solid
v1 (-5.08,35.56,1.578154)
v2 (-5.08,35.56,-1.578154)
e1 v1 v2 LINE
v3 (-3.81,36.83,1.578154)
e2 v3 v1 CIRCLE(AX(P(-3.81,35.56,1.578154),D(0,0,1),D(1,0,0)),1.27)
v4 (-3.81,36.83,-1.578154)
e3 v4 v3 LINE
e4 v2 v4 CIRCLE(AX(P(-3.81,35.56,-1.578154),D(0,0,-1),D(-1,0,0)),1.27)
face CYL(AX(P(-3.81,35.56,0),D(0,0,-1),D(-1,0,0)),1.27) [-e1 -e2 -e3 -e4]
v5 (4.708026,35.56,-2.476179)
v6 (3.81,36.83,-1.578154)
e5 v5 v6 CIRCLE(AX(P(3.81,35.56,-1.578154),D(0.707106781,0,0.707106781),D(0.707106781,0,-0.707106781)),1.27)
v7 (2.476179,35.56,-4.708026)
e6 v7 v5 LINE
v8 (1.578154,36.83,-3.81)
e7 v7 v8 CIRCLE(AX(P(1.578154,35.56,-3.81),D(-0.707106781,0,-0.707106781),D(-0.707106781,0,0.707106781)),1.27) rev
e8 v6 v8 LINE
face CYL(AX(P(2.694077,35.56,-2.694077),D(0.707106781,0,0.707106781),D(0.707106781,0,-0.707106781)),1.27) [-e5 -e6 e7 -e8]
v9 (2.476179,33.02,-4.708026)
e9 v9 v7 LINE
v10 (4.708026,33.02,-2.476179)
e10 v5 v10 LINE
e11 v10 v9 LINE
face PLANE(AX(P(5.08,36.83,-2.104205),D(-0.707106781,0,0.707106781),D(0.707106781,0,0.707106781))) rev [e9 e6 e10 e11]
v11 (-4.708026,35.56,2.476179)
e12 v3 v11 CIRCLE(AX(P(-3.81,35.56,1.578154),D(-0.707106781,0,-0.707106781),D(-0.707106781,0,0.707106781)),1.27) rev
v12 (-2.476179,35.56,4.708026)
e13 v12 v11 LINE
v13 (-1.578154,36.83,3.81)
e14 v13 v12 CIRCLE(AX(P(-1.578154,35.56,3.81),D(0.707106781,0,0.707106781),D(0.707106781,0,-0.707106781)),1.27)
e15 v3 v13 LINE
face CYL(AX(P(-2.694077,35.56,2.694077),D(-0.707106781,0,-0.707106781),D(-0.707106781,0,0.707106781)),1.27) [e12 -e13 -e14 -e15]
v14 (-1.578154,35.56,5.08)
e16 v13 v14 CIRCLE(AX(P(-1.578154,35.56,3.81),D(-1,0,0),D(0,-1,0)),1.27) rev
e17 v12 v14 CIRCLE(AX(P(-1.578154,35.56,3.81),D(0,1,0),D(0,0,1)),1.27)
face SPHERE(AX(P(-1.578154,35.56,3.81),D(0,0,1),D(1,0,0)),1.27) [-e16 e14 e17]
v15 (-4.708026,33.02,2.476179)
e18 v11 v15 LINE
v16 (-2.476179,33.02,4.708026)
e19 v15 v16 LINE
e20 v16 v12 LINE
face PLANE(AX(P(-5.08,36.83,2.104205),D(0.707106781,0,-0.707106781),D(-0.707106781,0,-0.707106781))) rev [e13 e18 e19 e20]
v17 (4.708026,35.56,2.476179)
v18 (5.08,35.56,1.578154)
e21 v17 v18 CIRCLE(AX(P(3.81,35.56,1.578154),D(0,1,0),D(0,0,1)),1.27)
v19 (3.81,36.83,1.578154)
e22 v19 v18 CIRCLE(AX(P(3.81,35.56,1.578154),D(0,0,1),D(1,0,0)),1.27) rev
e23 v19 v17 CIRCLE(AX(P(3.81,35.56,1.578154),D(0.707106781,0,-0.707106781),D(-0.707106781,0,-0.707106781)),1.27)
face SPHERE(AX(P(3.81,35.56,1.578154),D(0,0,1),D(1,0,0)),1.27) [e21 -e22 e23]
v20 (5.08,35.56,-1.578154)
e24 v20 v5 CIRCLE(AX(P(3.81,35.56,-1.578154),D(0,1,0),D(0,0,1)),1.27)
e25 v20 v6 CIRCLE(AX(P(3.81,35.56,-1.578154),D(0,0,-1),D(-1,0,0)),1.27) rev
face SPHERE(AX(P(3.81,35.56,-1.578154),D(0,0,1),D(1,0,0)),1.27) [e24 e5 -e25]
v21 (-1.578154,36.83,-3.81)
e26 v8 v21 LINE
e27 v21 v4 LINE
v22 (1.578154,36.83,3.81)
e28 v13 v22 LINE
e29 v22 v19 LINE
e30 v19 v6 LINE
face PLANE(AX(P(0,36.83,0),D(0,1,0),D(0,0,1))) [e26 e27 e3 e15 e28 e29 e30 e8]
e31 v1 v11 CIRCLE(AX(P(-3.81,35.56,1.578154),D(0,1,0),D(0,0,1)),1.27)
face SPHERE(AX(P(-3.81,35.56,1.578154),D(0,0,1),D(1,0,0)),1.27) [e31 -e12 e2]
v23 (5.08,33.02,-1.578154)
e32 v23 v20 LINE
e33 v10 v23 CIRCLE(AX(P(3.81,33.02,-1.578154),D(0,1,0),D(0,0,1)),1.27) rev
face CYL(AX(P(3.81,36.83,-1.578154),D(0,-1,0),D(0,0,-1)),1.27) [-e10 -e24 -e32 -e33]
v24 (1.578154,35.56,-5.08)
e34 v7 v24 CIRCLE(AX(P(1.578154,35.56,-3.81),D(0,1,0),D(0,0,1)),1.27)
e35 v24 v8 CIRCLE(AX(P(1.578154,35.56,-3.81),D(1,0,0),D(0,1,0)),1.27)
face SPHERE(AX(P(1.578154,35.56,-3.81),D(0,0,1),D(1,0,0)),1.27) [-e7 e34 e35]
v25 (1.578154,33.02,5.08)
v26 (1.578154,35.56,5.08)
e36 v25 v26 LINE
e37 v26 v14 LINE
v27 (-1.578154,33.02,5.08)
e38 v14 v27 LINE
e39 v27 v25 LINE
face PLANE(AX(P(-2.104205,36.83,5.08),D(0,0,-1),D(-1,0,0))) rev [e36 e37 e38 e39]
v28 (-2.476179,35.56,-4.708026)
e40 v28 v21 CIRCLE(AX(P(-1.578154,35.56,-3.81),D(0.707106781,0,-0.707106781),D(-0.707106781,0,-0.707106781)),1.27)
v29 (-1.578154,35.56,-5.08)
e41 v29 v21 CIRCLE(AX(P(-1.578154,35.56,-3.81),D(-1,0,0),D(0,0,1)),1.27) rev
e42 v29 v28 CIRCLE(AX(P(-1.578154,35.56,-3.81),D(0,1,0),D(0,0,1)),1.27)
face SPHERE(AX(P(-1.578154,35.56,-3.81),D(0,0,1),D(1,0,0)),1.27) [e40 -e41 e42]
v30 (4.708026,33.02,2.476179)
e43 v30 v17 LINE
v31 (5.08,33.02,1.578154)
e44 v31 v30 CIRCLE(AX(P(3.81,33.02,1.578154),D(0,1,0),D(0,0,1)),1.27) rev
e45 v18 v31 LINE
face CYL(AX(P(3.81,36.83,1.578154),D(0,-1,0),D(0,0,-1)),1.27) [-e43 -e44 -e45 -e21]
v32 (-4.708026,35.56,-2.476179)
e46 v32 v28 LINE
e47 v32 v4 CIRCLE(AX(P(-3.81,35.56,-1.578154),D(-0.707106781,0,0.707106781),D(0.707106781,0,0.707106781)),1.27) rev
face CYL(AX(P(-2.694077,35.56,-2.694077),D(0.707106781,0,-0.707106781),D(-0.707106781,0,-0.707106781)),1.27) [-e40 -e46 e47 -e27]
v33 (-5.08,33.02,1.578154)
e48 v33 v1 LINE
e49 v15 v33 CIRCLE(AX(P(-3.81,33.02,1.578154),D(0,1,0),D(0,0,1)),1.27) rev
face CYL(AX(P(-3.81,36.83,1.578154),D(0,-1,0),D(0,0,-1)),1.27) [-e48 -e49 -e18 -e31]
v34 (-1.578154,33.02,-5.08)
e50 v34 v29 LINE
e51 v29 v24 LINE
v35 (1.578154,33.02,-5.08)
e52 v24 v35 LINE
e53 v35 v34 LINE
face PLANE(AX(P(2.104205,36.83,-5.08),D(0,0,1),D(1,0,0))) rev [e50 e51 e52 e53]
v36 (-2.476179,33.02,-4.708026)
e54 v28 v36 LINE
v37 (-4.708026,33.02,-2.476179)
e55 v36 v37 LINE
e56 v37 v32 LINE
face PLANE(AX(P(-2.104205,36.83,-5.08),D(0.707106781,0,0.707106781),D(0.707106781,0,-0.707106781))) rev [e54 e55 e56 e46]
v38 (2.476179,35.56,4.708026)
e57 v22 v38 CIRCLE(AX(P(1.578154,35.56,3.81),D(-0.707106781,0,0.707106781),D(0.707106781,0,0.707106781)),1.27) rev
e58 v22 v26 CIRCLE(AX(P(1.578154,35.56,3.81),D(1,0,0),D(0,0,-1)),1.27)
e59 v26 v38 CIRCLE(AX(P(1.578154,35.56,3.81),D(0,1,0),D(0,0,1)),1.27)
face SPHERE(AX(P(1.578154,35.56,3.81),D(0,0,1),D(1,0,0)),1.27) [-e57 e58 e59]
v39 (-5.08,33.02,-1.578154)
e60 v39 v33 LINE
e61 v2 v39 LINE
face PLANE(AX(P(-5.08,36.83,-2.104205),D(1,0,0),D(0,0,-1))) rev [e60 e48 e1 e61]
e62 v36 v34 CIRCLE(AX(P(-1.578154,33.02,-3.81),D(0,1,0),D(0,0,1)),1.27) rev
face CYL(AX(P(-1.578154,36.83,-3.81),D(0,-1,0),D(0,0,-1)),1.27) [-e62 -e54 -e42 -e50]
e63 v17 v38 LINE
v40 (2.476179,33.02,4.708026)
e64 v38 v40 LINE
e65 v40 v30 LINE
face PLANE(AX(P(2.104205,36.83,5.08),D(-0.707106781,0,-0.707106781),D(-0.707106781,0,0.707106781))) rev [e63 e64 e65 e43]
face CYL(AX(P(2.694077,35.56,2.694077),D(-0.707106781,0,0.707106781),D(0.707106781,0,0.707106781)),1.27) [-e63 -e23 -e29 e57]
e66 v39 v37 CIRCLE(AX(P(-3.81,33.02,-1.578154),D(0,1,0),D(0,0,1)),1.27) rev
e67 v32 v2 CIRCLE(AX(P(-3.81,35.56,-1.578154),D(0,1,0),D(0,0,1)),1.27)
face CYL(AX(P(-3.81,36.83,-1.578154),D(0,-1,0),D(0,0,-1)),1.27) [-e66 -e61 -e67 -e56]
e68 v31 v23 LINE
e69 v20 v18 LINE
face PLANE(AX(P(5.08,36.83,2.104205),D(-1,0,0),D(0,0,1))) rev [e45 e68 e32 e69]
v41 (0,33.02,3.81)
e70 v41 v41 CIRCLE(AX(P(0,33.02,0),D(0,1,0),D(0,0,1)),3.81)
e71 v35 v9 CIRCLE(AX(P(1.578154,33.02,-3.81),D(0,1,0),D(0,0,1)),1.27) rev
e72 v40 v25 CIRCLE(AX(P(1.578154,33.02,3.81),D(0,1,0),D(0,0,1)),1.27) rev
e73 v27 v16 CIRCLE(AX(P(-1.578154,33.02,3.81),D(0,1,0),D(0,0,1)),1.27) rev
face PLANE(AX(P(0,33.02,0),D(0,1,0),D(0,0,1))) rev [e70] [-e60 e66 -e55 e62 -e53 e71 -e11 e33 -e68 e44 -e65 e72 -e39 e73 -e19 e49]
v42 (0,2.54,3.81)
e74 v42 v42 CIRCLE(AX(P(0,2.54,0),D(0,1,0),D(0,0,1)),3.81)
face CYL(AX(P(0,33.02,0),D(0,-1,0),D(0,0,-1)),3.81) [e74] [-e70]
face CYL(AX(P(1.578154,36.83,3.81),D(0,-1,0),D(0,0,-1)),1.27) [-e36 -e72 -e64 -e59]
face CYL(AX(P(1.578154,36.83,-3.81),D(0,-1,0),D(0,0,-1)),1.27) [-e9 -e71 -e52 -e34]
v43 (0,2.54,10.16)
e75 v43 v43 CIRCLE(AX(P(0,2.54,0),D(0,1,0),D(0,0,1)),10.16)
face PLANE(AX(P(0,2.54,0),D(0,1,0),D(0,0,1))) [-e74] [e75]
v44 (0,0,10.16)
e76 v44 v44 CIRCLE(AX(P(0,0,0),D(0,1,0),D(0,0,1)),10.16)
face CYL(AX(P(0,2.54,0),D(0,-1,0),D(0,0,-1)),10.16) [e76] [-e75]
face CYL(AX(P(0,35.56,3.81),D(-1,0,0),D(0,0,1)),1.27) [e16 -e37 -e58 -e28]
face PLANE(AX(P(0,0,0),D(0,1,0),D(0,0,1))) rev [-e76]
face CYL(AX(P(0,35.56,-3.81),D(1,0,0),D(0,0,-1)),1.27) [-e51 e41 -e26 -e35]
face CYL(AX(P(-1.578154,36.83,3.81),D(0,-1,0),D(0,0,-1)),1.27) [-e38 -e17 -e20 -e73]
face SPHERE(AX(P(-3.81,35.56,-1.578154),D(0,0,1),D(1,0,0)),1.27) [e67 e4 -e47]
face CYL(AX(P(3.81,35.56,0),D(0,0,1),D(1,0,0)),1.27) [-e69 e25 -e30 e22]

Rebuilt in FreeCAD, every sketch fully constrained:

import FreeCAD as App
import Part
import Sketcher
Q = App.Units.Quantity


def edges_at(feature, points):
    """Names of the edges that pass closest to the given points."""
    edges = feature.Shape.Edges
    near = lambda p: min(range(len(edges)), key=lambda i: edges[i].distToShape(Part.Vertex(*p))[0])
    return sorted({f"Edge{near(p) + 1}" for p in points})

doc = App.newDocument("Part")
body = doc.addObject("PartDesign::Body", "Body")

# Sketch on XZ plane
sketch1 = body.newObject("Sketcher::SketchObject", "Sketch")
sketch1.AttachmentSupport = (doc.getObject("XZ_Plane"), [""])
sketch1.MapMode = "FlatFace"
sketch1.addGeometry(Part.Circle(App.Vector(0, 0, 0), App.Vector(0, 0, 1), 10), False)
sketch1.addConstraint(Sketcher.Constraint("Coincident", 0, 3, -1, 1))
sketch1.addConstraint(Sketcher.Constraint("Diameter", 0, Q("0.8 in")))
pad1 = body.newObject("PartDesign::Pad", "Pad")
pad1.Profile = sketch1
pad1.Length = Q("0.1 in")
pad1.Reversed = True

# Sketch on XZ plane
sketch2 = body.newObject("Sketcher::SketchObject", "Sketch001")
sketch2.AttachmentSupport = (doc.getObject("XZ_Plane"), [""])
sketch2.MapMode = "FlatFace"
sketch2.AttachmentOffset = App.Placement(App.Vector(0, 0, -0.1 * 25.4), App.Rotation())
sketch2.addGeometry(Part.Circle(App.Vector(0, 0, 0), App.Vector(0, 0, 1), 3.8), False)
sketch2.addConstraint(Sketcher.Constraint("Coincident", 0, 3, -1, 1))
sketch2.addConstraint(Sketcher.Constraint("Diameter", 0, Q("0.3 in")))
pad2 = body.newObject("PartDesign::Pad", "Pad001")
pad2.Profile = sketch2
pad2.Length = Q("1.2 in")
pad2.Reversed = True

# Sketch on XZ plane
sketch3 = body.newObject("Sketcher::SketchObject", "Sketch002")
sketch3.AttachmentSupport = (doc.getObject("XZ_Plane"), [""])
sketch3.MapMode = "FlatFace"
sketch3.AttachmentOffset = App.Placement(App.Vector(0, 0, -1.3 * 25.4), App.Rotation())
sketch3.addGeometry(Part.LineSegment(App.Vector(2.1, -5.1, 0), App.Vector(-2.1, -5.1, 0)), False)
sketch3.addGeometry(Part.LineSegment(App.Vector(-2.1, -5.1, 0), App.Vector(-5.1, -2.1, 0)), False)
sketch3.addGeometry(Part.LineSegment(App.Vector(-5.1, -2.1, 0), App.Vector(-5.1, 2.1, 0)), False)
sketch3.addGeometry(Part.LineSegment(App.Vector(-5.1, 2.1, 0), App.Vector(-2.1, 5.1, 0)), False)
sketch3.addGeometry(Part.LineSegment(App.Vector(-2.1, 5.1, 0), App.Vector(2.1, 5.1, 0)), False)
sketch3.addGeometry(Part.LineSegment(App.Vector(2.1, 5.1, 0), App.Vector(5.1, 2.1, 0)), False)
sketch3.addGeometry(Part.LineSegment(App.Vector(5.1, 2.1, 0), App.Vector(5.1, -2.1, 0)), False)
sketch3.addGeometry(Part.LineSegment(App.Vector(5.1, -2.1, 0), App.Vector(2.1, -5.1, 0)), False)
sketch3.addConstraint(Sketcher.Constraint("Coincident", 0, 2, 1, 1))
sketch3.addConstraint(Sketcher.Constraint("Coincident", 1, 2, 2, 1))
sketch3.addConstraint(Sketcher.Constraint("Coincident", 2, 2, 3, 1))
sketch3.addConstraint(Sketcher.Constraint("Coincident", 3, 2, 4, 1))
sketch3.addConstraint(Sketcher.Constraint("Coincident", 4, 2, 5, 1))
sketch3.addConstraint(Sketcher.Constraint("Coincident", 5, 2, 6, 1))
sketch3.addConstraint(Sketcher.Constraint("Coincident", 6, 2, 7, 1))
sketch3.addConstraint(Sketcher.Constraint("Coincident", 7, 2, 0, 1))
sketch3.addConstraint(Sketcher.Constraint("Horizontal", 0))
sketch3.addConstraint(Sketcher.Constraint("Vertical", 2))
sketch3.addConstraint(Sketcher.Constraint("Horizontal", 4))
sketch3.addConstraint(Sketcher.Constraint("Vertical", 6))
sketch3.addConstraint(Sketcher.Constraint("Symmetric", 0, 2, 4, 2, -1, 1))
sketch3.addConstraint(Sketcher.Constraint("Symmetric", 1, 2, 5, 2, -1, 1))
sketch3.addConstraint(Sketcher.Constraint("Perpendicular", 1, 3))
sketch3.addConstraint(Sketcher.Constraint("Perpendicular", 5, 7))
sketch3.addConstraint(Sketcher.Constraint("Horizontal", 2, 2, 5, 2))
sketch3.addConstraint(Sketcher.Constraint("Horizontal", 1, 2, 6, 2))
sketch3.addConstraint(Sketcher.Constraint("Vertical", 0, 2, 3, 2))
sketch3.addConstraint(Sketcher.Constraint("Equal", 4, 2))
sketch3.addConstraint(Sketcher.Constraint("DistanceY", 0, 2, -1, 1, Q("0.2 in")))
sketch3.addConstraint(Sketcher.Constraint("DistanceX", 0, 2, 0, 1, Q("4.20841 mm")))
pad3 = body.newObject("PartDesign::Pad", "Pad002")
pad3.Profile = sketch3
pad3.Length = Q("0.15 in")
pad3.Reversed = True
doc.recompute()

fillet = body.newObject("PartDesign::Fillet", "Fillet")
fillet.Base = (pad3, edges_at(pad3, [
    (5.08, 34.925, -2.104),
    (2.104, 34.925, -5.08),
    (-2.104, 34.925, -5.08),
    (-5.08, 34.925, -2.104),
    (-5.08, 34.925, 2.104),
    (-2.104, 34.925, 5.08),
    (2.104, 34.925, 5.08),
    (5.08, 34.925, 2.104),
    (3.592, 36.83, -3.592),
    (0, 36.83, -5.08),
    (-3.592, 36.83, -3.592),
    (-5.08, 36.83, 0),
    (-3.592, 36.83, 3.592),
    (0, 36.83, 5.08),
    (3.592, 36.83, 3.592),
    (5.08, 36.83, 0),
]))
fillet.Radius = Q("0.05 in")

doc.recompute()
